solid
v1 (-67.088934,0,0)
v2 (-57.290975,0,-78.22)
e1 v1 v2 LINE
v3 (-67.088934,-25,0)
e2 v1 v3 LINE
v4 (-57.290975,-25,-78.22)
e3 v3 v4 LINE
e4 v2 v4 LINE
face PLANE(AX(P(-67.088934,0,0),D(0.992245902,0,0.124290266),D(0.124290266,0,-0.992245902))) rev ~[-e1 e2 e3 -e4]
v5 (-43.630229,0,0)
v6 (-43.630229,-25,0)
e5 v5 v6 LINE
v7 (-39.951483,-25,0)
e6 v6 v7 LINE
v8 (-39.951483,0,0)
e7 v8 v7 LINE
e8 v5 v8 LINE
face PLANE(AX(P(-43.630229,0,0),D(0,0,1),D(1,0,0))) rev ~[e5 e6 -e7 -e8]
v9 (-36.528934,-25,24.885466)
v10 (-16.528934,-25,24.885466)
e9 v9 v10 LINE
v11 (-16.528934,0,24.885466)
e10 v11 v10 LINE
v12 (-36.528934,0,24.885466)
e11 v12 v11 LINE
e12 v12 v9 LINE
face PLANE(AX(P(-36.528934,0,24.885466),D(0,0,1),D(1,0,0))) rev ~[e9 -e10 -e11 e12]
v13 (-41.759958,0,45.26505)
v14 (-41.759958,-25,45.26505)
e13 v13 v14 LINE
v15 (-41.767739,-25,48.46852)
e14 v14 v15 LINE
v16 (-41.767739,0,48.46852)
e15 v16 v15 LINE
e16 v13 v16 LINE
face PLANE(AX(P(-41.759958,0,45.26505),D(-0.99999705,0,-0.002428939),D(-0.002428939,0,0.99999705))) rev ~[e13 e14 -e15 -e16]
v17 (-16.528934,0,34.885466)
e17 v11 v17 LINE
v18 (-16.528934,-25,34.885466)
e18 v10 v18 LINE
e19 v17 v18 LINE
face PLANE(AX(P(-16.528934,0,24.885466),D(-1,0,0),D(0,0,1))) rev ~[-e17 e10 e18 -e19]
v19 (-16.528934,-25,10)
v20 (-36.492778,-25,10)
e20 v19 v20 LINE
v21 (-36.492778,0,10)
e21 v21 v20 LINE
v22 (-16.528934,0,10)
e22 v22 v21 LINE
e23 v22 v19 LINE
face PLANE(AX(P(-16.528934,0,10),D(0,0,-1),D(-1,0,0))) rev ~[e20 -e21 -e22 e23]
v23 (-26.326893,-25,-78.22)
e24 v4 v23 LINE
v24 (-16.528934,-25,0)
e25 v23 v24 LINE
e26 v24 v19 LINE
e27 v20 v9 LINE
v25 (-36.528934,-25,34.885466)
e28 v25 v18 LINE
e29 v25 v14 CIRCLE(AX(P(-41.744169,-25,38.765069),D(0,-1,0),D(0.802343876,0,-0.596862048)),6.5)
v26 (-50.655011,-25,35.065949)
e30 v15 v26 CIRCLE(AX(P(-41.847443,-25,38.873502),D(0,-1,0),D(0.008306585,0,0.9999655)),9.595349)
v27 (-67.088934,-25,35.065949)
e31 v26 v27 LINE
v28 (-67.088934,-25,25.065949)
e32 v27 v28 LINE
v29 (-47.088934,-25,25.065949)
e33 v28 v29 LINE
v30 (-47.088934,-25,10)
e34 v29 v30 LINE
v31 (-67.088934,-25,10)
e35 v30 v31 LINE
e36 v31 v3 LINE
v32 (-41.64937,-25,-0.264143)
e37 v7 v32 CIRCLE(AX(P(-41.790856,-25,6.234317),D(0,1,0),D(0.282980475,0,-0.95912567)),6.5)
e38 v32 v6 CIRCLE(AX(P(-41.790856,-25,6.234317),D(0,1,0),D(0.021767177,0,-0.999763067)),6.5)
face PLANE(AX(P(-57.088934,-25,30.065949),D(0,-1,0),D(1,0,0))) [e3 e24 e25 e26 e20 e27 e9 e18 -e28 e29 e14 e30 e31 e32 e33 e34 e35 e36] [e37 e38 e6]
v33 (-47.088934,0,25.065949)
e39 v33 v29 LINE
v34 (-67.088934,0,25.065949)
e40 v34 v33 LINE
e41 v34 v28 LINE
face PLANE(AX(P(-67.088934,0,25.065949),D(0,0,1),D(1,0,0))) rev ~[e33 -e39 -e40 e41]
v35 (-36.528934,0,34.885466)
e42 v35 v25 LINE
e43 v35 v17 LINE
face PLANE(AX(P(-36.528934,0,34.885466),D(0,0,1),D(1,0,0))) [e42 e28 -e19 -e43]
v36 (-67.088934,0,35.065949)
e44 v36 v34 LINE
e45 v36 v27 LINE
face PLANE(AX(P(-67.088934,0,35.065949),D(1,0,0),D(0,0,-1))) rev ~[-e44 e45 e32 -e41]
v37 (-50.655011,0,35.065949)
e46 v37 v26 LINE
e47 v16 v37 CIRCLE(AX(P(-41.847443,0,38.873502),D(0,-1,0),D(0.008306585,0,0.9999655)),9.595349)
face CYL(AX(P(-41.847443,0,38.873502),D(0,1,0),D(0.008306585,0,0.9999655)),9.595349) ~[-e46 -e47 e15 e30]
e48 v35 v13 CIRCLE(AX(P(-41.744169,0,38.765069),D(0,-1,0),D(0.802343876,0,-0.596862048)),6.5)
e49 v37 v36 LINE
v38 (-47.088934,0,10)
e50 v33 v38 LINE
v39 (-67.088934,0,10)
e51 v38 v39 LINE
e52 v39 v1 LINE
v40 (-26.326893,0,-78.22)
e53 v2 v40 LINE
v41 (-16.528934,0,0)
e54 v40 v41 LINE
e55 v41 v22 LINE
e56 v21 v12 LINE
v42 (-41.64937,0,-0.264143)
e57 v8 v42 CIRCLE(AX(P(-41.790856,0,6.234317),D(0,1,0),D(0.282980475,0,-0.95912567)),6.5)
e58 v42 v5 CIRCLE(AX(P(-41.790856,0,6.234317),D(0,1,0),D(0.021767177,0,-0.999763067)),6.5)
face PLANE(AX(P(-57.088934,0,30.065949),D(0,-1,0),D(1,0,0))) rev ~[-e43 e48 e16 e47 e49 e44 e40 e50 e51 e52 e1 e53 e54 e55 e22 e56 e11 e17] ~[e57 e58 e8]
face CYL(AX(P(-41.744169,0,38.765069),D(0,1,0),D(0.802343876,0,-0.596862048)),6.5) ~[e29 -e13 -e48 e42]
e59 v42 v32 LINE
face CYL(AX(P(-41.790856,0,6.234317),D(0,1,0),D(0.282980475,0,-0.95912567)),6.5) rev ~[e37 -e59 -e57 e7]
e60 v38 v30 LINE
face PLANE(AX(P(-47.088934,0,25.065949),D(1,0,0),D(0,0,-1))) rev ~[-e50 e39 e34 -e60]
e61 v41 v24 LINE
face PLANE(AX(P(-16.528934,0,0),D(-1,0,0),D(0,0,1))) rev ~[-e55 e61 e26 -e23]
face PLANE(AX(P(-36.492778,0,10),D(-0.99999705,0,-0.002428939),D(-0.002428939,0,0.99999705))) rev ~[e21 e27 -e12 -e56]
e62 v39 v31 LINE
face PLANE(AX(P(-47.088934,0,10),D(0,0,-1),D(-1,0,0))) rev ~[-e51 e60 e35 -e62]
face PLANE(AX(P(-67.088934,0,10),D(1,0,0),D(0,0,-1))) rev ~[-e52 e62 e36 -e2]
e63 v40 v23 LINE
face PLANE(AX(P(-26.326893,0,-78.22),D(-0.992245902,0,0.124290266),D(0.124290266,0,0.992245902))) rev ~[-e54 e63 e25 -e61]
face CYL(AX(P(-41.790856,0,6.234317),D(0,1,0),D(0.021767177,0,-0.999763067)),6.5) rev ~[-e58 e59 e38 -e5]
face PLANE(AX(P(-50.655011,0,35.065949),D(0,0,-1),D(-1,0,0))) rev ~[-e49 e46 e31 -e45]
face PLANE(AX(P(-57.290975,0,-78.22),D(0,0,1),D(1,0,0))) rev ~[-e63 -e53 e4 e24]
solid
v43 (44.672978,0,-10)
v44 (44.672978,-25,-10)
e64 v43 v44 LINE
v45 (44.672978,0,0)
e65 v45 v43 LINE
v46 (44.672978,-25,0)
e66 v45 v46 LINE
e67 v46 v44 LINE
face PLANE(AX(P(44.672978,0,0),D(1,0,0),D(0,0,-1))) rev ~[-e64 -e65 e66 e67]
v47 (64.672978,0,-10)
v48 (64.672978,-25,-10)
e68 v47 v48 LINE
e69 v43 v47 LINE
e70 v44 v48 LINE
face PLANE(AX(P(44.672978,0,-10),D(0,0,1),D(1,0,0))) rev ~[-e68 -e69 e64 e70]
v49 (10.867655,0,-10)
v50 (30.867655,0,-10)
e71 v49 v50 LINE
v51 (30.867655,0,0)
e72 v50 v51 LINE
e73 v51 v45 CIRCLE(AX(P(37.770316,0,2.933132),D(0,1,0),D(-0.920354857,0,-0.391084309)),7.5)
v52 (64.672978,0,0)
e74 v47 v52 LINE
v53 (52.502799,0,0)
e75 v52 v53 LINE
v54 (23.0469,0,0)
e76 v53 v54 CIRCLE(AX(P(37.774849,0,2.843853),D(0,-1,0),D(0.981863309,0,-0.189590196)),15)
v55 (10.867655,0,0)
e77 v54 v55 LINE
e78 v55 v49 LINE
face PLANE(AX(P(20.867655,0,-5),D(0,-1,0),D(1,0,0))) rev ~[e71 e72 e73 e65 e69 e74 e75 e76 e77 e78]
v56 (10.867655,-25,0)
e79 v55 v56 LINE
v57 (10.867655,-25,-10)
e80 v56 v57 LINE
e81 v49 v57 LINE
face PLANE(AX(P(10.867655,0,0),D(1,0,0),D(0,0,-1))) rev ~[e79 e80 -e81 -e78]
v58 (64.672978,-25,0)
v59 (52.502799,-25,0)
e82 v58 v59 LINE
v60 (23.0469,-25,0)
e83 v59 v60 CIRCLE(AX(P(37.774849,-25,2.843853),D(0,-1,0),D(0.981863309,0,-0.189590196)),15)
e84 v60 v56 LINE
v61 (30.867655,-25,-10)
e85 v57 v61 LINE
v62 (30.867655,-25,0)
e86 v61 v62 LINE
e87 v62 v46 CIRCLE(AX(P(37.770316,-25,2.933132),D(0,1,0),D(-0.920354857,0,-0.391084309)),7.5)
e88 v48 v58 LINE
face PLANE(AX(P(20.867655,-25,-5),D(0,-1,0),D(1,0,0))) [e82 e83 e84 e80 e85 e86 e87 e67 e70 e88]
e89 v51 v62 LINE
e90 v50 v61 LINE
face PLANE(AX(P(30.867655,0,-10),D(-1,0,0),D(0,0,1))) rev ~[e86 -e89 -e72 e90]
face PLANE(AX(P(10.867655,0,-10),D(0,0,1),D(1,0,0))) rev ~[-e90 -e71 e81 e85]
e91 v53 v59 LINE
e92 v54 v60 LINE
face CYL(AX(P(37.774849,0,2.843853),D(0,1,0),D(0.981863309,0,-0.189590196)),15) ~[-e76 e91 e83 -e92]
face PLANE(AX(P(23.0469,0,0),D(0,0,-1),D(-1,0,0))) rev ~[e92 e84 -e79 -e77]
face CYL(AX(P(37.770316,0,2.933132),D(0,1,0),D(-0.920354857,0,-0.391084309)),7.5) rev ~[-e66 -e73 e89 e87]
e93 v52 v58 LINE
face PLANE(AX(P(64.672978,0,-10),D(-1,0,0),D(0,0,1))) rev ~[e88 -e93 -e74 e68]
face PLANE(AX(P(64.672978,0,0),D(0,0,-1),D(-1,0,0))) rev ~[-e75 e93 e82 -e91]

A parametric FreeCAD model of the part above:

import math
import FreeCAD as App
import Part
import Sketcher

doc = App.newDocument("Part")
body = doc.addObject("PartDesign::Body", "Body")

# Sketch on XZ plane
sketch1 = body.newObject("Sketcher::SketchObject", "Sketch")
sketch1.AttachmentSupport = (doc.getObject("XZ_Plane"), [""])
sketch1.MapMode = "FlatFace"
sketch1.addGeometry([
    Part.LineSegment(App.Vector(-41.8, 45.3, 0), App.Vector(-41.8, 48.5, 0)),  # 0
    Part.ArcOfCircle(Part.Circle(App.Vector(-41.8, 38.9, 0), App.Vector(0, 0, 1), 9.6), math.radians(90), math.radians(203)),  # 1
    Part.LineSegment(App.Vector(-50.7, 35.1, 0), App.Vector(-67.1, 35.1, 0)),  # 2
    Part.LineSegment(App.Vector(-67.1, 35.1, 0), App.Vector(-67.1, 25.1, 0)),  # 3
    Part.LineSegment(App.Vector(-67.1, 25.1, 0), App.Vector(-47.1, 25.1, 0)),  # 4
    Part.LineSegment(App.Vector(-47.1, 25.1, 0), App.Vector(-47.1, 10, 0)),  # 5
    Part.LineSegment(App.Vector(-47.1, 10, 0), App.Vector(-67.1, 10, 0)),  # 6
    Part.LineSegment(App.Vector(-67.1, 10, 0), App.Vector(-67.1, 0, 0)),  # 7
    Part.LineSegment(App.Vector(-67.1, 0, 0), App.Vector(-57.3, -78.2, 0)),  # 8
    Part.LineSegment(App.Vector(-57.3, -78.2, 0), App.Vector(-26.3, -78.2, 0)),  # 9
    Part.LineSegment(App.Vector(-26.3, -78.2, 0), App.Vector(-16.5, 0, 0)),  # 10
    Part.LineSegment(App.Vector(-16.5, 0, 0), App.Vector(-16.5, 10, 0)),  # 11
    Part.LineSegment(App.Vector(-16.5, 10, 0), App.Vector(-36.5, 10, 0)),  # 12
    Part.LineSegment(App.Vector(-36.5, 10, 0), App.Vector(-36.5, 24.9, 0)),  # 13
    Part.LineSegment(App.Vector(-36.5, 24.9, 0), App.Vector(-16.5, 24.9, 0)),  # 14
    Part.LineSegment(App.Vector(-16.5, 24.9, 0), App.Vector(-16.5, 34.9, 0)),  # 15
    Part.LineSegment(App.Vector(-16.5, 34.9, 0), App.Vector(-36.5, 34.9, 0)),  # 16
    Part.ArcOfCircle(Part.Circle(App.Vector(-41.7, 38.8, 0), App.Vector(0, 0, 1), 6.5), math.radians(-37), math.radians(90)),  # 17
    Part.ArcOfCircle(Part.Circle(App.Vector(-41.8, 6.2, 0), App.Vector(0, 0, 1), 6.5), math.radians(-106.44), math.radians(-88.75)),  # 18
    Part.LineSegment(App.Vector(-43.6, 0, 0), App.Vector(-40, 0, 0)),  # 19
    Part.ArcOfCircle(Part.Circle(App.Vector(-41.8, 6.2, 0), App.Vector(0, 0, 1), 6.5), math.radians(-88.75), math.radians(-73.56)),  # 20
], False)
sketch1.addConstraint([
    Sketcher.Constraint("Coincident", 0, 2, 1, 1),
    Sketcher.Constraint("Coincident", 1, 2, 2, 1),
    Sketcher.Constraint("Coincident", 2, 2, 3, 1),
    Sketcher.Constraint("Coincident", 3, 2, 4, 1),
    Sketcher.Constraint("Coincident", 4, 2, 5, 1),
    Sketcher.Constraint("Coincident", 5, 2, 6, 1),
    Sketcher.Constraint("Coincident", 6, 2, 7, 1),
    Sketcher.Constraint("Coincident", 7, 2, 8, 1),
    Sketcher.Constraint("Coincident", 8, 2, 9, 1),
    Sketcher.Constraint("Coincident", 9, 2, 10, 1),
    Sketcher.Constraint("Coincident", 10, 2, 11, 1),
    Sketcher.Constraint("Coincident", 11, 2, 12, 1),
    Sketcher.Constraint("Coincident", 12, 2, 13, 1),
    Sketcher.Constraint("Coincident", 13, 2, 14, 1),
    Sketcher.Constraint("Coincident", 14, 2, 15, 1),
    Sketcher.Constraint("Coincident", 15, 2, 16, 1),
    Sketcher.Constraint("Coincident", 16, 2, 17, 1),
    Sketcher.Constraint("Coincident", 17, 2, 0, 1),
    Sketcher.Constraint("Coincident", 18, 1, 19, 1),
    Sketcher.Constraint("Coincident", 19, 2, 20, 2),
    Sketcher.Constraint("Tangent", 20, 1, 18, 2),
    Sketcher.Constraint("Horizontal", 2),
    Sketcher.Constraint("Vertical", 3),
    Sketcher.Constraint("Horizontal", 4),
    Sketcher.Constraint("Vertical", 5),
    Sketcher.Constraint("Horizontal", 6),
    Sketcher.Constraint("Vertical", 7),
    Sketcher.Constraint("Horizontal", 9),
    Sketcher.Constraint("Vertical", 11),
    Sketcher.Constraint("Horizontal", 12),
    Sketcher.Constraint("Horizontal", 14),
    Sketcher.Constraint("Vertical", 15),
    Sketcher.Constraint("Horizontal", 16),
    Sketcher.Constraint("Horizontal", 19),
    Sketcher.Constraint("Equal", 17, 18),
    Sketcher.Constraint("Equal", 18, 20),
    Sketcher.Constraint("PointOnObject", 7, 2, -1),
    Sketcher.Constraint("PointOnObject", 10, 2, -1),
    Sketcher.Constraint("PointOnObject", 18, 1, -1),
    Sketcher.Constraint("Parallel", 0, 13),
    Sketcher.Constraint("Horizontal", 6, 2, 11, 2),
    Sketcher.Constraint("Vertical", 3, 2, 6, 2),
    Sketcher.Constraint("Vertical", 11, 2, 14, 2),
    Sketcher.Constraint("Vertical", 13, 2, 16, 2),
    Sketcher.Constraint("Equal", 6, 14),
    Sketcher.Constraint("Equal", 3, 7),
    Sketcher.Constraint("Equal", 11, 15),
    Sketcher.Constraint("Equal", 8, 10),
    Sketcher.Constraint("Radius", 17, 6.5),
    Sketcher.Constraint("DistanceX", 4, 1, 4, 2, 20.0),
    Sketcher.Constraint("DistanceY", 3, 2, 3, 1, 10.0),
    Sketcher.Constraint("DistanceY", 8, 2, -1, 1, 78.22),
    Sketcher.Constraint("Radius", 1, 9.595349),
    Sketcher.Constraint("DistanceX", 5, 2, 10, 2, 30.56),
    Sketcher.Constraint("DistanceY", 5, 2, 5, 1, 15.065949),
    Sketcher.Constraint("DistanceY", 1, 2, 17, 2, 10.199101),
    Sketcher.Constraint("Distance", 0, 3.20348),
    Sketcher.Constraint("Distance", 13, 14.88551),
    Sketcher.Constraint("DistanceX", 2, 2, 2, 1, 16.433923),
    Sketcher.Constraint("DistanceX", 9, 1, 9, 2, 30.964082),
    Sketcher.Constraint("DistanceX", 12, 2, 12, 1, 19.963844),
    Sketcher.Constraint("DistanceX", 19, 1, 19, 2, 3.678746),
    Sketcher.Constraint("DistanceX", 17, 3, -1, 1, 41.744169),
    Sketcher.Constraint("DistanceX", 0, 2, -1, 1, 41.767739),
    Sketcher.Constraint("DistanceX", 18, 1, -1, 1, 43.630229),
    Sketcher.Constraint("DistanceX", 20, 1, -1, 1, 41.64937),
])
pad1 = body.newObject("PartDesign::Pad", "Pad")
pad1.Profile = sketch1
pad1.Length = 25
body2 = doc.addObject("PartDesign::Body", "Body001")

# Sketch on XZ plane
sketch2 = body2.newObject("Sketcher::SketchObject", "Sketch001")
sketch2.AttachmentSupport = (doc.getObject("XZ_Plane001"), [""])
sketch2.MapMode = "FlatFace"
sketch2.addGeometry([
    Part.LineSegment(App.Vector(31, -10, 0), App.Vector(31, 0, 0)),  # 0
    Part.ArcOfCircle(Part.Circle(App.Vector(38, 3, 0), App.Vector(0, 0, 1), 8), math.radians(-23), math.radians(203)),  # 1
    Part.LineSegment(App.Vector(45, 0, 0), App.Vector(45, -10, 0)),  # 2
    Part.LineSegment(App.Vector(45, -10, 0), App.Vector(65, -10, 0)),  # 3
    Part.LineSegment(App.Vector(65, -10, 0), App.Vector(65, 0, 0)),  # 4
    Part.LineSegment(App.Vector(65, 0, 0), App.Vector(53, 0, 0)),  # 5
    Part.ArcOfCircle(Part.Circle(App.Vector(38, 3, 0), App.Vector(0, 0, 1), 15), math.radians(-11), math.radians(191)),  # 6
    Part.LineSegment(App.Vector(23, 0, 0), App.Vector(11, 0, 0)),  # 7
    Part.LineSegment(App.Vector(11, 0, 0), App.Vector(11, -10, 0)),  # 8
    Part.LineSegment(App.Vector(11, -10, 0), App.Vector(31, -10, 0)),  # 9
], False)
sketch2.addConstraint([
    Sketcher.Constraint("Coincident", 0, 2, 1, 2),
    Sketcher.Constraint("Coincident", 1, 1, 2, 1),
    Sketcher.Constraint("Coincident", 2, 2, 3, 1),
    Sketcher.Constraint("Coincident", 3, 2, 4, 1),
    Sketcher.Constraint("Coincident", 4, 2, 5, 1),
    Sketcher.Constraint("Coincident", 5, 2, 6, 1),
    Sketcher.Constraint("Coincident", 6, 2, 7, 1),
    Sketcher.Constraint("Coincident", 7, 2, 8, 1),
    Sketcher.Constraint("Coincident", 8, 2, 9, 1),
    Sketcher.Constraint("Coincident", 9, 2, 0, 1),
    Sketcher.Constraint("Vertical", 0),
    Sketcher.Constraint("Vertical", 2),
    Sketcher.Constraint("Horizontal", 3),
    Sketcher.Constraint("Vertical", 4),
    Sketcher.Constraint("Horizontal", 5),
    Sketcher.Constraint("Horizontal", 7),
    Sketcher.Constraint("Vertical", 8),
    Sketcher.Constraint("Horizontal", 9),
    Sketcher.Constraint("PointOnObject", 0, 2, -1),
    Sketcher.Constraint("PointOnObject", 1, 1, -1),
    Sketcher.Constraint("PointOnObject", 4, 2, -1),
    Sketcher.Constraint("PointOnObject", 6, 2, -1),
    Sketcher.Constraint("Horizontal", 3, 2, 8, 2),
    Sketcher.Constraint("Equal", 3, 9),
    Sketcher.Constraint("Radius", 6, 15.0),
    Sketcher.Constraint("Radius", 1, 7.5),
    Sketcher.Constraint("DistanceX", 3, 1, 3, 2, 20.0),
    Sketcher.Constraint("DistanceY", 0, 1, 0, 2, 10.0),
    Sketcher.Constraint("DistanceX", 5, 2, 5, 1, 12.170179),
    Sketcher.Constraint("DistanceX", -1, 1, 5, 2, 52.502799),
    Sketcher.Constraint("DistanceX", -1, 1, 6, 2, 23.0469),
    Sketcher.Constraint("DistanceX", 7, 2, 7, 1, 12.179245),
])
pad2 = body2.newObject("PartDesign::Pad", "Pad001")
pad2.Profile = sketch2
pad2.Length = 25

doc.recompute()
